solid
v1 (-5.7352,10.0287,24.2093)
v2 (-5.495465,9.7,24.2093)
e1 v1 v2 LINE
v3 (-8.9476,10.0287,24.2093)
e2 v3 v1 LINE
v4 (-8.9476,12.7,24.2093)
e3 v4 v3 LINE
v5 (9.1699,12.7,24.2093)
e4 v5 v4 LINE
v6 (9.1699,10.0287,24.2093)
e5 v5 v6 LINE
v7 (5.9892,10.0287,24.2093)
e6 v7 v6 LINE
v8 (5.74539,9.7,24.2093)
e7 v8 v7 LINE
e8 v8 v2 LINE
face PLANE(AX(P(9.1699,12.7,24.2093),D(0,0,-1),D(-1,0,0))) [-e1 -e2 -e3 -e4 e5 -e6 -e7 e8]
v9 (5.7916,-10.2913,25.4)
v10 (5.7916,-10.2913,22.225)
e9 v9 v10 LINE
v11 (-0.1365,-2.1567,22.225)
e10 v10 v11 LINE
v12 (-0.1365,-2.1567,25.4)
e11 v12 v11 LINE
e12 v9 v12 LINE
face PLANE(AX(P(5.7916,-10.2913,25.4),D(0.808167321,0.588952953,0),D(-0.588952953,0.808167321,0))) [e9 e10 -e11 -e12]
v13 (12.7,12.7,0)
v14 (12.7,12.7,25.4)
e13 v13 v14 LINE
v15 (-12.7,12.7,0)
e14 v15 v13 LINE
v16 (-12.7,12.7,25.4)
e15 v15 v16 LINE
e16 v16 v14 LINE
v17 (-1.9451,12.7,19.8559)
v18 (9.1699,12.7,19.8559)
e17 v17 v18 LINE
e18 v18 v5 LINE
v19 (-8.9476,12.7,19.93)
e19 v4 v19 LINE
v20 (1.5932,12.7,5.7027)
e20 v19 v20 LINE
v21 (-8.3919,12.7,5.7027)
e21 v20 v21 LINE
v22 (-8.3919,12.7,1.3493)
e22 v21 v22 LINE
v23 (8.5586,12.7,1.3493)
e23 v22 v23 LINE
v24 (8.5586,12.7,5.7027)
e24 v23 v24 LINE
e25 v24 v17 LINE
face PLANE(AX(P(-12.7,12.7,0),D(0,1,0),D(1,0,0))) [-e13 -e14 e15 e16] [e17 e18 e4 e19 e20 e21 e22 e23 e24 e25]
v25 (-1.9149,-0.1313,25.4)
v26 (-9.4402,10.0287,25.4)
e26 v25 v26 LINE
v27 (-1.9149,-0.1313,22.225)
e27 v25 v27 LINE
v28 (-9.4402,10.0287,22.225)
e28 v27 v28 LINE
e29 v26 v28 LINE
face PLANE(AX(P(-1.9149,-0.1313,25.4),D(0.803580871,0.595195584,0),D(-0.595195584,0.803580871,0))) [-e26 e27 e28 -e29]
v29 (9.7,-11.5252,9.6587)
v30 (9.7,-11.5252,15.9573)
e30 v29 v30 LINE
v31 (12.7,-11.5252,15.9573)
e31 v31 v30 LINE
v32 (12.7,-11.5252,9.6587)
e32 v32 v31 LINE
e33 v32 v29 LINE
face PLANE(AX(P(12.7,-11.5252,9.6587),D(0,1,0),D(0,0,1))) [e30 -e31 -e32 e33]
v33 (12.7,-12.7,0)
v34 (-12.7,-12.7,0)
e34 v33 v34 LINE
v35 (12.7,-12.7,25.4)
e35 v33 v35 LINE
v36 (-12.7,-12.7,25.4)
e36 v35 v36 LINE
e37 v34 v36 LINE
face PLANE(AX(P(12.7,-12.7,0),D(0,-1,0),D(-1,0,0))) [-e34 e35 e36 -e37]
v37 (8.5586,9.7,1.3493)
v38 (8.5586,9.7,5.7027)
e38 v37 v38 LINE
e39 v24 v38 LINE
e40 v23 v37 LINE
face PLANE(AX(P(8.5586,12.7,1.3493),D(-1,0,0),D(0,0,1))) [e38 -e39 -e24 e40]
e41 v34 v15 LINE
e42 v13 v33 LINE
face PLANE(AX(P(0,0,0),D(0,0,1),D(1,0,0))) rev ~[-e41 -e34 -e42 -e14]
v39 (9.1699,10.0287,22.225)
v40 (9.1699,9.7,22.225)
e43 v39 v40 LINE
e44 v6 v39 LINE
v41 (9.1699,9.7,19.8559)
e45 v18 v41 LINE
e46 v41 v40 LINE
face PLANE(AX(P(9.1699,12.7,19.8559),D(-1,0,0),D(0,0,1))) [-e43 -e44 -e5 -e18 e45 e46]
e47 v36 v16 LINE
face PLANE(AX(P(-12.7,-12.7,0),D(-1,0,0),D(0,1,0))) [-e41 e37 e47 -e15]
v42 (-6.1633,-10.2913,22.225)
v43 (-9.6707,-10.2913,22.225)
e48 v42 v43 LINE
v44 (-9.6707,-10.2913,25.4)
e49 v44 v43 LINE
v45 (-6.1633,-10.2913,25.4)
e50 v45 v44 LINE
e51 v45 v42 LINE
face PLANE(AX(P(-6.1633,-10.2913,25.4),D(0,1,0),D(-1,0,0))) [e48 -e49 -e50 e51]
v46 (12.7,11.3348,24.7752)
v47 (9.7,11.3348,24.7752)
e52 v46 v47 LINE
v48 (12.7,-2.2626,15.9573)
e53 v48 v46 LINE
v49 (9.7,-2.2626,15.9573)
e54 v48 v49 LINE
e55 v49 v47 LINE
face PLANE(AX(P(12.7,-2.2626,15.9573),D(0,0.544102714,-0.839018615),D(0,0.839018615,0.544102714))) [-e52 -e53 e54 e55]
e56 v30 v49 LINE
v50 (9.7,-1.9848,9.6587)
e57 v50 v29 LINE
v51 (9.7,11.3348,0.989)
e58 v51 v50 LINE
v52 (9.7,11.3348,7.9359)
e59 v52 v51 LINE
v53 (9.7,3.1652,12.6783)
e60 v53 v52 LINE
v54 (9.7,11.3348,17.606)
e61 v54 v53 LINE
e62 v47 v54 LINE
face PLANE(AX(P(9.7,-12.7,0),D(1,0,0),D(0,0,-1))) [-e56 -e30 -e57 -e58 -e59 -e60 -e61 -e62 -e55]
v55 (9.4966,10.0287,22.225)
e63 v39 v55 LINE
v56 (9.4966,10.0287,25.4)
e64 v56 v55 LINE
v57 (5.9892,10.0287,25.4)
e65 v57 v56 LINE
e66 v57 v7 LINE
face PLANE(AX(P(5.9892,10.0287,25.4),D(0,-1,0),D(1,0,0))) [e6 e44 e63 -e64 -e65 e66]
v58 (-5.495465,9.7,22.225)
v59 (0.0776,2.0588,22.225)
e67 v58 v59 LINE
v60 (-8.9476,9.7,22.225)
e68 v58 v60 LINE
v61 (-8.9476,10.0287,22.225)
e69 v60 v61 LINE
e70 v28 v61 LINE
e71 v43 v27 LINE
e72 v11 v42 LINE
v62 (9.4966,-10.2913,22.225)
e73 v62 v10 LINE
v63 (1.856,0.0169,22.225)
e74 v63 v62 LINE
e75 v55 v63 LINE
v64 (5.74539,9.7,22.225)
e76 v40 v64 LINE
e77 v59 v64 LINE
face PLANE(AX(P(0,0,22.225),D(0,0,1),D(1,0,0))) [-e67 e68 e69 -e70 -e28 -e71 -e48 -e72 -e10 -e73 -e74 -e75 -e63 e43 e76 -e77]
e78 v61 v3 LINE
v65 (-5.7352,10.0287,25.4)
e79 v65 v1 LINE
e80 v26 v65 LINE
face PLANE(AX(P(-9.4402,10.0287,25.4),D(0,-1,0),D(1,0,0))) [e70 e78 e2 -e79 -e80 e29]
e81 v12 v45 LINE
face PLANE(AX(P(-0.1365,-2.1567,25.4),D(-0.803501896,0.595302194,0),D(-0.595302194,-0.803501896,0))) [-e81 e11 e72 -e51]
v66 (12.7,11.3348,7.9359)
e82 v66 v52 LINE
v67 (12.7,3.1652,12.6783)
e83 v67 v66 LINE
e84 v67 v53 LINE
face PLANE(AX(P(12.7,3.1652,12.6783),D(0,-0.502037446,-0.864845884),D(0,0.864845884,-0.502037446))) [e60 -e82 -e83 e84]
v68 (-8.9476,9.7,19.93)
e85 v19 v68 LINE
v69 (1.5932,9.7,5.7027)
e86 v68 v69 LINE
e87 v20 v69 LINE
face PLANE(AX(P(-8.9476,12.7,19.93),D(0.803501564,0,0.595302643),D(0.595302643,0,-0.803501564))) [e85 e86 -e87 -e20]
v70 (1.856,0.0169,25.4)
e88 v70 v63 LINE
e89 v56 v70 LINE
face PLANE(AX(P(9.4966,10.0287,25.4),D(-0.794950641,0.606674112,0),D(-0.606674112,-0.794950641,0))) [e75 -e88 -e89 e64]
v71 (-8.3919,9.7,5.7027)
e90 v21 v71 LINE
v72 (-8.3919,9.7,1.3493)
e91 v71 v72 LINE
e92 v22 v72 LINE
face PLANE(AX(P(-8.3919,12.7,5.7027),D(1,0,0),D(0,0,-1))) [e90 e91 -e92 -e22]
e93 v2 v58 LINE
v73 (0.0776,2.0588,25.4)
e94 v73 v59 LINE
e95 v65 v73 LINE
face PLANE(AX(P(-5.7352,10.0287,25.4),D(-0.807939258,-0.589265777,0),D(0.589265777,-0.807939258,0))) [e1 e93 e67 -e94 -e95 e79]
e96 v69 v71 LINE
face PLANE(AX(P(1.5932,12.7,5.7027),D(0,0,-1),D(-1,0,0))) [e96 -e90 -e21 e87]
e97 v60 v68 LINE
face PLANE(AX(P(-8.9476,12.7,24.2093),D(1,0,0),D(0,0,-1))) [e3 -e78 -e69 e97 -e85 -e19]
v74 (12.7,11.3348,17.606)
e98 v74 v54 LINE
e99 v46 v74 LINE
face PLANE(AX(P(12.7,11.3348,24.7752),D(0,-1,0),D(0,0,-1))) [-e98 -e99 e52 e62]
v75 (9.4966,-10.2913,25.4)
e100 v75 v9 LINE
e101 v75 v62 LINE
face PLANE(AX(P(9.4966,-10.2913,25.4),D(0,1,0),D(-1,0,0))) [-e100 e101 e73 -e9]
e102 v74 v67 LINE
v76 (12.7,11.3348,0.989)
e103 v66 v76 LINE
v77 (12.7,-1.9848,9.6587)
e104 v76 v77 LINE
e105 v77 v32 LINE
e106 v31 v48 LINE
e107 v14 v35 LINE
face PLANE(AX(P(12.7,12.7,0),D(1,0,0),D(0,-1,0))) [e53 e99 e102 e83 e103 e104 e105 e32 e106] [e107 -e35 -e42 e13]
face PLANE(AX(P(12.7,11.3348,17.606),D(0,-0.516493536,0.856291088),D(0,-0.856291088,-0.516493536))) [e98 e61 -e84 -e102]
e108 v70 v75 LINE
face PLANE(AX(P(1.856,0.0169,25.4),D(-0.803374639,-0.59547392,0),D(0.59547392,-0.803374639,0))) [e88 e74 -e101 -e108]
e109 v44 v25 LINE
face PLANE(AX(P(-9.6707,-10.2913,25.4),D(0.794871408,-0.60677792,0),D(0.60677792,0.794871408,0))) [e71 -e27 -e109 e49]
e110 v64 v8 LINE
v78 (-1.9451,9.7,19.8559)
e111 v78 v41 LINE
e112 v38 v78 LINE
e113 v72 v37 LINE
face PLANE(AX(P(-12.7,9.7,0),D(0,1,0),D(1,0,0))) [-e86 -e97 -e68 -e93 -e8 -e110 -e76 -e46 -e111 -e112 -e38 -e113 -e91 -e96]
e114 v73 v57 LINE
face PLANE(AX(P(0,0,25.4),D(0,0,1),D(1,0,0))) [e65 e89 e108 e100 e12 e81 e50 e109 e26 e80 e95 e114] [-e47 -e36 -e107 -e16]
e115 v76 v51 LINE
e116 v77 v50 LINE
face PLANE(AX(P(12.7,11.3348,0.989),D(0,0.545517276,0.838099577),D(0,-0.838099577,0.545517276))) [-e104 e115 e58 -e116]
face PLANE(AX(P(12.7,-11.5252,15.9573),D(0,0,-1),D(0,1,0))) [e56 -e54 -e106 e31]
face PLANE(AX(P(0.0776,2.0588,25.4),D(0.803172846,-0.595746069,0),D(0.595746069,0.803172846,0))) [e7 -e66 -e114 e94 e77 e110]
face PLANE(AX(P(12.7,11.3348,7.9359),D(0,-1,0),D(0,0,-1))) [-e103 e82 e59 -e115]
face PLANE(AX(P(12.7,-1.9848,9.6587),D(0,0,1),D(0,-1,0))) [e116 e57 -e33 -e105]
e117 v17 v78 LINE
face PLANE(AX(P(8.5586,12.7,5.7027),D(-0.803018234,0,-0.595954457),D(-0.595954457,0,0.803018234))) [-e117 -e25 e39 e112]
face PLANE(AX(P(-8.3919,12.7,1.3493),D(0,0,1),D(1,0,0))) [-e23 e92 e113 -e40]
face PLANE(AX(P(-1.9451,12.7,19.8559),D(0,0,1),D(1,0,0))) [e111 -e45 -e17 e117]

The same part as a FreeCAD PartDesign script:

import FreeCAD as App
import Part
import Sketcher
Q = App.Units.Quantity

doc = App.newDocument("Part")
params = doc.addObject("Spreadsheet::Sheet", "Params")
for row, (alias, value) in enumerate([
    ("sketch1_width", "1 in"),
    ("pad1_length", "1 in"),
    ("pocket1_length", "0.125 in"),
    ("pocket2_length", "0.1181102 in"),
    ("pocket3_length", "0.1181102 in"),
], start=1):
    params.set(f"A{row}", alias)
    params.set(f"B{row}", "=" + value)
    params.setAlias(f"B{row}", alias)

body = doc.addObject("PartDesign::Body", "Body")

# Sketch on XY plane
sketch1 = body.newObject("Sketcher::SketchObject", "Sketch")
sketch1.AttachmentSupport = (doc.getObject("XY_Plane"), [""])
sketch1.MapMode = "FlatFace"
sketch1.addGeometry(Part.LineSegment(App.Vector(-13, -13, 0), App.Vector(13, -13, 0)), False)
sketch1.addGeometry(Part.LineSegment(App.Vector(13, -13, 0), App.Vector(13, 13, 0)), False)
sketch1.addGeometry(Part.LineSegment(App.Vector(13, 13, 0), App.Vector(-13, 13, 0)), False)
sketch1.addGeometry(Part.LineSegment(App.Vector(-13, 13, 0), App.Vector(-13, -13, 0)), False)
sketch1.addConstraint(Sketcher.Constraint("Coincident", 0, 2, 1, 1))
sketch1.addConstraint(Sketcher.Constraint("Coincident", 1, 2, 2, 1))
sketch1.addConstraint(Sketcher.Constraint("Coincident", 2, 2, 3, 1))
sketch1.addConstraint(Sketcher.Constraint("Coincident", 3, 2, 0, 1))
sketch1.addConstraint(Sketcher.Constraint("Horizontal", 0))
sketch1.addConstraint(Sketcher.Constraint("Vertical", 1))
sketch1.addConstraint(Sketcher.Constraint("Horizontal", 2))
sketch1.addConstraint(Sketcher.Constraint("Vertical", 3))
sketch1.addConstraint(Sketcher.Constraint("Symmetric", 0, 2, 2, 2, -1, 1))
sketch1.addConstraint(Sketcher.Constraint("Equal", 2, 1))
sketch1.addConstraint(Sketcher.Constraint("DistanceX", 0, 1, 0, 2, Q("1 in")))
sketch1.setExpression("Constraints[10]", "Params.sketch1_width")
pad1 = body.newObject("PartDesign::Pad", "Pad")
pad1.Profile = sketch1
pad1.setExpression("Length", "Params.pad1_length")

# Sketch on XY plane
sketch2 = body.newObject("Sketcher::SketchObject", "Sketch001")
sketch2.AttachmentSupport = (doc.getObject("XY_Plane"), [""])
sketch2.MapMode = "FlatFace"
sketch2.AttachmentOffset = App.Placement(App.Vector(0, 0, 1 * 25.4), App.Rotation())
sketch2.addGeometry(Part.LineSegment(App.Vector(5.7916, -10.2913, 0), App.Vector(9.4966, -10.2913, 0)), False)
sketch2.addGeometry(Part.LineSegment(App.Vector(9.4966, -10.2913, 0), App.Vector(1.856, 0.0169, 0)), False)
sketch2.addGeometry(Part.LineSegment(App.Vector(1.856, 0.0169, 0), App.Vector(9.4966, 10.0287, 0)), False)
sketch2.addGeometry(Part.LineSegment(App.Vector(9.4966, 10.0287, 0), App.Vector(5.9892, 10.0287, 0)), False)
sketch2.addGeometry(Part.LineSegment(App.Vector(5.9892, 10.0287, 0), App.Vector(0.0776, 2.0588, 0)), False)
sketch2.addGeometry(Part.LineSegment(App.Vector(0.0776, 2.0588, 0), App.Vector(-5.7352, 10.0287, 0)), False)
sketch2.addGeometry(Part.LineSegment(App.Vector(-5.7352, 10.0287, 0), App.Vector(-9.4402, 10.0287, 0)), False)
sketch2.addGeometry(Part.LineSegment(App.Vector(-9.4402, 10.0287, 0), App.Vector(-1.9149, -0.1313, 0)), False)
sketch2.addGeometry(Part.LineSegment(App.Vector(-1.9149, -0.1313, 0), App.Vector(-9.6707, -10.2913, 0)), False)
sketch2.addGeometry(Part.LineSegment(App.Vector(-9.6707, -10.2913, 0), App.Vector(-6.1633, -10.2913, 0)), False)
sketch2.addGeometry(Part.LineSegment(App.Vector(-6.1633, -10.2913, 0), App.Vector(-0.1365, -2.1567, 0)), False)
sketch2.addGeometry(Part.LineSegment(App.Vector(-0.1365, -2.1567, 0), App.Vector(5.7916, -10.2913, 0)), False)
sketch2.addConstraint(Sketcher.Constraint("Coincident", 0, 2, 1, 1))
sketch2.addConstraint(Sketcher.Constraint("Coincident", 1, 2, 2, 1))
sketch2.addConstraint(Sketcher.Constraint("Coincident", 2, 2, 3, 1))
sketch2.addConstraint(Sketcher.Constraint("Coincident", 3, 2, 4, 1))
sketch2.addConstraint(Sketcher.Constraint("Coincident", 4, 2, 5, 1))
sketch2.addConstraint(Sketcher.Constraint("Coincident", 5, 2, 6, 1))
sketch2.addConstraint(Sketcher.Constraint("Coincident", 6, 2, 7, 1))
sketch2.addConstraint(Sketcher.Constraint("Coincident", 7, 2, 8, 1))
sketch2.addConstraint(Sketcher.Constraint("Coincident", 8, 2, 9, 1))
sketch2.addConstraint(Sketcher.Constraint("Coincident", 9, 2, 10, 1))
sketch2.addConstraint(Sketcher.Constraint("Coincident", 10, 2, 11, 1))
sketch2.addConstraint(Sketcher.Constraint("Coincident", 11, 2, 0, 1))
sketch2.addConstraint(Sketcher.Constraint("Horizontal", 0))
sketch2.addConstraint(Sketcher.Constraint("Horizontal", 3))
sketch2.addConstraint(Sketcher.Constraint("Horizontal", 6))
sketch2.addConstraint(Sketcher.Constraint("Horizontal", 9))
sketch2.addConstraint(Sketcher.Constraint("DistanceY", 0, 2, 2, 2, Q("0.8 in")))
sketch2.addConstraint(Sketcher.Constraint("DistanceY", 0, 2, 5, 2, Q("0.8 in")))
sketch2.addConstraint(Sketcher.Constraint("DistanceY", 7, 2, 5, 2, Q("0.4 in")))
sketch2.addConstraint(Sketcher.Constraint("DistanceY", 8, 2, 7, 2, Q("0.4 in")))
sketch2.addConstraint(Sketcher.Constraint("DistanceX", 0, 1, 0, 2, 3.705))
sketch2.addConstraint(Sketcher.Constraint("DistanceX", 3, 2, 3, 1, 3.5074))
sketch2.addConstraint(Sketcher.Constraint("DistanceX", 6, 2, 6, 1, 3.705))
sketch2.addConstraint(Sketcher.Constraint("DistanceX", 9, 1, 9, 2, 3.5074))
sketch2.addConstraint(Sketcher.Constraint("DistanceX", -1, 1, 3, 2, Q("0.2358 in")))
sketch2.addConstraint(Sketcher.Constraint("DistanceX", 5, 2, -1, 1, Q("0.2258 in")))
sketch2.addConstraint(Sketcher.Constraint("DistanceX", 7, 2, -1, 1, Q("0.0754 in")))
sketch2.addConstraint(Sketcher.Constraint("DistanceY", 10, 2, -1, 1, Q("0.0849 in")))
sketch2.addConstraint(Sketcher.Constraint("DistanceX", 1, 2, 0, 2, Q("0.3008 in")))
sketch2.addConstraint(Sketcher.Constraint("DistanceX", 1, 2, 2, 2, Q("0.3008 in")))
sketch2.addConstraint(Sketcher.Constraint("DistanceY", 1, 2, 4, 2, Q("0.0804 in")))
sketch2.addConstraint(Sketcher.Constraint("DistanceX", 8, 2, 1, 2, Q("0.4538 in")))
sketch2.addConstraint(Sketcher.Constraint("DistanceX", 8, 2, 4, 2, Q("0.3838 in")))
sketch2.addConstraint(Sketcher.Constraint("DistanceX", 10, 2, 11, 2, Q("0.2334 in")))
sketch2.addConstraint(Sketcher.Constraint("Distance", 1, 12.8311))
sketch2.addConstraint(Sketcher.Constraint("Distance", 10, 10.124))
pocket1 = body.newObject("PartDesign::Pocket", "Pocket")
pocket1.Profile = sketch2
pocket1.setExpression("Length", "Params.pocket1_length")

# Sketch on YZ plane
sketch3 = body.newObject("Sketcher::SketchObject", "Sketch002")
sketch3.AttachmentSupport = (doc.getObject("YZ_Plane"), [""])
sketch3.MapMode = "FlatFace"
sketch3.AttachmentOffset = App.Placement(App.Vector(0, 0, 0.5 * 25.4), App.Rotation())
sketch3.addGeometry(Part.LineSegment(App.Vector(-2, 10, 0), App.Vector(11, 1, 0)), False)
sketch3.addGeometry(Part.LineSegment(App.Vector(11, 1, 0), App.Vector(11, 8, 0)), False)
sketch3.addGeometry(Part.LineSegment(App.Vector(11, 8, 0), App.Vector(3, 13, 0)), False)
sketch3.addGeometry(Part.LineSegment(App.Vector(3, 13, 0), App.Vector(11, 18, 0)), False)
sketch3.addGeometry(Part.LineSegment(App.Vector(11, 18, 0), App.Vector(11, 25, 0)), False)
sketch3.addGeometry(Part.LineSegment(App.Vector(11, 25, 0), App.Vector(-2, 16, 0)), False)
sketch3.addGeometry(Part.LineSegment(App.Vector(-2, 16, 0), App.Vector(-12, 16, 0)), False)
sketch3.addGeometry(Part.LineSegment(App.Vector(-12, 16, 0), App.Vector(-12, 10, 0)), False)
sketch3.addGeometry(Part.LineSegment(App.Vector(-12, 10, 0), App.Vector(-2, 10, 0)), False)
sketch3.addConstraint(Sketcher.Constraint("Coincident", 0, 2, 1, 1))
sketch3.addConstraint(Sketcher.Constraint("Coincident", 1, 2, 2, 1))
sketch3.addConstraint(Sketcher.Constraint("Coincident", 2, 2, 3, 1))
sketch3.addConstraint(Sketcher.Constraint("Coincident", 3, 2, 4, 1))
sketch3.addConstraint(Sketcher.Constraint("Coincident", 4, 2, 5, 1))
sketch3.addConstraint(Sketcher.Constraint("Coincident", 5, 2, 6, 1))
sketch3.addConstraint(Sketcher.Constraint("Coincident", 6, 2, 7, 1))
sketch3.addConstraint(Sketcher.Constraint("Coincident", 7, 2, 8, 1))
sketch3.addConstraint(Sketcher.Constraint("Coincident", 8, 2, 0, 1))
sketch3.addConstraint(Sketcher.Constraint("Vertical", 1))
sketch3.addConstraint(Sketcher.Constraint("Vertical", 4))
sketch3.addConstraint(Sketcher.Constraint("Horizontal", 6))
sketch3.addConstraint(Sketcher.Constraint("Vertical", 7))
sketch3.addConstraint(Sketcher.Constraint("Horizontal", 8))
sketch3.addConstraint(Sketcher.Constraint("Vertical", 1, 2, 3, 2))
sketch3.addConstraint(Sketcher.Constraint("DistanceX", 6, 2, 3, 2, Q("0.9 in")))
sketch3.addConstraint(Sketcher.Constraint("Angle", 0, Q("-33.06 deg")))
sketch3.addConstraint(Sketcher.Constraint("DistanceX", 8, 1, 8, 2, Q("0.3756 in")))
sketch3.addConstraint(Sketcher.Constraint("DistanceY", 1, 1, 1, 2, Q("0.2735 in")))
sketch3.addConstraint(Sketcher.Constraint("DistanceY", 2, 2, 3, 2, Q("0.194 in")))
sketch3.addConstraint(Sketcher.Constraint("Distance", 2, Q("0.3719 in")))
sketch3.addConstraint(Sketcher.Constraint("DistanceX", 6, 2, 6, 1, 9.2626))
sketch3.addConstraint(Sketcher.Constraint("DistanceY", 4, 1, 4, 2, 7.1692))
sketch3.addConstraint(Sketcher.Constraint("DistanceY", 7, 2, 7, 1, 6.2986))
sketch3.addConstraint(Sketcher.Constraint("DistanceY", -1, 1, 4, 2, Q("0.9754 in")))
sketch3.addConstraint(Sketcher.Constraint("DistanceY", 1, 2, 2, 2, Q("0.1867 in")))
sketch3.addConstraint(Sketcher.Constraint("DistanceX", -1, 1, 0, 2, 11.3348))
pocket2 = body.newObject("PartDesign::Pocket", "Pocket001")
pocket2.Profile = sketch3
pocket2.setExpression("Length", "Params.pocket2_length")

# Sketch on XZ plane
sketch4 = body.newObject("Sketcher::SketchObject", "Sketch003")
sketch4.AttachmentSupport = (doc.getObject("XZ_Plane"), [""])
sketch4.MapMode = "FlatFace"
sketch4.AttachmentOffset = App.Placement(App.Vector(0, 0, -0.5 * 25.4), App.Rotation())
sketch4.addGeometry(Part.LineSegment(App.Vector(-8.9, 24.2, 0), App.Vector(9.2, 24.2, 0)), False)
sketch4.addGeometry(Part.LineSegment(App.Vector(9.2, 24.2, 0), App.Vector(9.2, 19.9, 0)), False)
sketch4.addGeometry(Part.LineSegment(App.Vector(9.2, 19.9, 0), App.Vector(-1.9, 19.9, 0)), False)
sketch4.addGeometry(Part.LineSegment(App.Vector(-1.9, 19.9, 0), App.Vector(8.6, 5.7, 0)), False)
sketch4.addGeometry(Part.LineSegment(App.Vector(8.6, 5.7, 0), App.Vector(8.6, 1.3, 0)), False)
sketch4.addGeometry(Part.LineSegment(App.Vector(8.6, 1.3, 0), App.Vector(-8.4, 1.3, 0)), False)
sketch4.addGeometry(Part.LineSegment(App.Vector(-8.4, 1.3, 0), App.Vector(-8.4, 5.7, 0)), False)
sketch4.addGeometry(Part.LineSegment(App.Vector(-8.4, 5.7, 0), App.Vector(1.6, 5.7, 0)), False)
sketch4.addGeometry(Part.LineSegment(App.Vector(1.6, 5.7, 0), App.Vector(-8.9, 19.9, 0)), False)
sketch4.addGeometry(Part.LineSegment(App.Vector(-8.9, 19.9, 0), App.Vector(-8.9, 24.2, 0)), False)
sketch4.addConstraint(Sketcher.Constraint("Coincident", 0, 2, 1, 1))
sketch4.addConstraint(Sketcher.Constraint("Coincident", 1, 2, 2, 1))
sketch4.addConstraint(Sketcher.Constraint("Coincident", 2, 2, 3, 1))
sketch4.addConstraint(Sketcher.Constraint("Coincident", 3, 2, 4, 1))
sketch4.addConstraint(Sketcher.Constraint("Coincident", 4, 2, 5, 1))
sketch4.addConstraint(Sketcher.Constraint("Coincident", 5, 2, 6, 1))
sketch4.addConstraint(Sketcher.Constraint("Coincident", 6, 2, 7, 1))
sketch4.addConstraint(Sketcher.Constraint("Coincident", 7, 2, 8, 1))
sketch4.addConstraint(Sketcher.Constraint("Coincident", 8, 2, 9, 1))
sketch4.addConstraint(Sketcher.Constraint("Coincident", 9, 2, 0, 1))
sketch4.addConstraint(Sketcher.Constraint("Horizontal", 0))
sketch4.addConstraint(Sketcher.Constraint("Vertical", 1))
sketch4.addConstraint(Sketcher.Constraint("Horizontal", 2))
sketch4.addConstraint(Sketcher.Constraint("Vertical", 4))
sketch4.addConstraint(Sketcher.Constraint("Horizontal", 5))
sketch4.addConstraint(Sketcher.Constraint("Vertical", 6))
sketch4.addConstraint(Sketcher.Constraint("Horizontal", 7))
sketch4.addConstraint(Sketcher.Constraint("Vertical", 9))
sketch4.addConstraint(Sketcher.Constraint("Horizontal", 3, 2, 6, 2))
sketch4.addConstraint(Sketcher.Constraint("Equal", 1, 4))
sketch4.addConstraint(Sketcher.Constraint("DistanceY", 4, 2, 0, 2, Q("0.9 in")))
sketch4.addConstraint(Sketcher.Constraint("Angle", 3, Q("-53.4193 deg")))
sketch4.addConstraint(Sketcher.Constraint("DistanceX", 2, 2, 2, 1, Q("0.4376 in")))
sketch4.addConstraint(Sketcher.Constraint("DistanceY", 1, 2, 1, 1, Q("0.1714 in")))
sketch4.addConstraint(Sketcher.Constraint("DistanceY", -1, 1, 0, 2, Q("0.953122 in")))
sketch4.addConstraint(Sketcher.Constraint("DistanceX", 8, 2, 7, 2, Q("0.415 in")))
sketch4.addConstraint(Sketcher.Constraint("Distance", 8, Q("0.6971 in")))
sketch4.addConstraint(Sketcher.Constraint("DistanceX", 0, 1, 0, 2, 18.1175))
sketch4.addConstraint(Sketcher.Constraint("DistanceX", 5, 2, 5, 1, 16.9505))
sketch4.addConstraint(Sketcher.Constraint("DistanceX", 5, 2, -1, 1, Q("0.3304 in")))
pocket3 = body.newObject("PartDesign::Pocket", "Pocket002")
pocket3.Profile = sketch4
pocket3.setExpression("Length", "Params.pocket3_length")
pocket3.Reversed = True

doc.recompute()
